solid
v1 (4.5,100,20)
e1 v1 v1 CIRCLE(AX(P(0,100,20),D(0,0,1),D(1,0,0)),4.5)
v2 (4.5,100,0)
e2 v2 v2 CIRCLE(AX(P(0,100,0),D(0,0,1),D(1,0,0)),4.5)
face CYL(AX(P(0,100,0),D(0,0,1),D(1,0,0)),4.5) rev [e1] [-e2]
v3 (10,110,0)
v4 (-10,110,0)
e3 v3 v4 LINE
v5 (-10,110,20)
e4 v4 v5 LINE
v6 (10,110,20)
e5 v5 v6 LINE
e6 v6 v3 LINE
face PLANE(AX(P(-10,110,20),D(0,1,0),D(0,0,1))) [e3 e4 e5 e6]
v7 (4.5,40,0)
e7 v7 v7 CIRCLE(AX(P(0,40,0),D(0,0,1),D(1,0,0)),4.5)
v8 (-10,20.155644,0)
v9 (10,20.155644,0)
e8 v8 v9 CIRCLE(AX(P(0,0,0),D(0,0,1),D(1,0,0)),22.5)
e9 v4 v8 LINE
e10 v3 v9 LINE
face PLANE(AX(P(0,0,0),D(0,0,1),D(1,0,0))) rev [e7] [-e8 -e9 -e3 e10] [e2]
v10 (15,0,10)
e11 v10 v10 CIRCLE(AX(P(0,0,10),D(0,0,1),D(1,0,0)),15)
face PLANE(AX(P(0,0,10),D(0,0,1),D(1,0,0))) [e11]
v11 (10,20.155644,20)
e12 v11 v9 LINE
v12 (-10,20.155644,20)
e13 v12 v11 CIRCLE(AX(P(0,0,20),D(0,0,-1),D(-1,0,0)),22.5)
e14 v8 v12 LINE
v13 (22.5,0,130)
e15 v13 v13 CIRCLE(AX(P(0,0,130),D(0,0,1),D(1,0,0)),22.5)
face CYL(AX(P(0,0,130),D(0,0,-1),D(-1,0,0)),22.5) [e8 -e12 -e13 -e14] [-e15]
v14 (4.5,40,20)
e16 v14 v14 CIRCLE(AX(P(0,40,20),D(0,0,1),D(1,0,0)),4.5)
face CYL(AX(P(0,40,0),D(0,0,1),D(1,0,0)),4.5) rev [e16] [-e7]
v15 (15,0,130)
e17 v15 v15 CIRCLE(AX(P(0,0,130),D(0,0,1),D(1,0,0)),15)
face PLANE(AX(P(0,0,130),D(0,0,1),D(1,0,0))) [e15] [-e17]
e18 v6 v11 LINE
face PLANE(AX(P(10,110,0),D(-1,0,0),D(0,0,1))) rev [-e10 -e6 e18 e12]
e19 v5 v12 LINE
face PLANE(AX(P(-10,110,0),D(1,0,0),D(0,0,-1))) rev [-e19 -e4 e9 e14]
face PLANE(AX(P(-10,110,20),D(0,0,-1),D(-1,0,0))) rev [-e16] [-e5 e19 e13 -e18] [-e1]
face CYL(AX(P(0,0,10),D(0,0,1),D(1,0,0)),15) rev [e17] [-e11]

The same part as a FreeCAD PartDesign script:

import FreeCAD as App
import Part
import Sketcher
from FreeCAD import Vector


def add_polygon(sketch, points):
    """Adds a closed chain of lines whose ends are joined by coincident constraints."""
    first, n = sketch.GeometryCount, len(points)
    for a, b in zip(points, points[1:] + points[:1]):
        sketch.addGeometry(Part.LineSegment(App.Vector(*a, 0), App.Vector(*b, 0)), False)
    for i in range(n):
        sketch.addConstraint(Sketcher.Constraint("Coincident", first + i, 2, first + (i + 1) % n, 1))

doc = App.newDocument("Part")
body = doc.addObject("PartDesign::Body", "Body")

# Sketch on XY plane
sketch1 = body.newObject("Sketcher::SketchObject", "Sketch")
sketch1.AttachmentSupport = (doc.getObject("XY_Plane"), [""])
sketch1.MapMode = "FlatFace"
sketch1.addGeometry(Part.Circle(Vector(0, 0, 0), Vector(0, 0, 1), 22), False)
sketch1.addConstraint(Sketcher.Constraint("Coincident", 0, 3, -1, 1))
sketch1.addConstraint(Sketcher.Constraint("Diameter", 0, 45.0))
pad1 = body.newObject("PartDesign::Pad", "Pad")
pad1.Profile = sketch1
pad1.Length = 130

# Sketch on XZ plane
sketch2 = body.newObject("Sketcher::SketchObject", "Sketch001")
sketch2.AttachmentSupport = (doc.getObject("XZ_Plane"), [""])
sketch2.MapMode = "FlatFace"
add_polygon(sketch2, [(-10, 0), (-10, 20), (10, 20), (10, 0)])  # lines 0-3
sketch2.addConstraint(Sketcher.Constraint("Vertical", 0))
sketch2.addConstraint(Sketcher.Constraint("Horizontal", 1))
sketch2.addConstraint(Sketcher.Constraint("Vertical", 2))
sketch2.addConstraint(Sketcher.Constraint("Horizontal", 3))
sketch2.addConstraint(Sketcher.Constraint("Symmetric", 2, 2, 3, 2, -1, 1))
sketch2.addConstraint(Sketcher.Constraint("Equal", 3, 0))
sketch2.addConstraint(Sketcher.Constraint("DistanceX", 1, 1, 1, 2, 20.0))
pad2 = body.newObject("PartDesign::Pad", "Pad001")
pad2.Profile = sketch2
pad2.Length = 110
pad2.Reversed = True

# Sketch on XY plane
sketch3 = body.newObject("Sketcher::SketchObject", "Sketch002")
sketch3.AttachmentSupport = (doc.getObject("XY_Plane"), [""])
sketch3.MapMode = "FlatFace"
sketch3.AttachmentOffset = App.Placement(Vector(0, 0, 20), App.Rotation())
sketch3.addGeometry(Part.Circle(Vector(0, 100, 0), Vector(0, 0, 1), 4.5), False)
sketch3.addGeometry(Part.Circle(Vector(0, 40, 0), Vector(0, 0, 1), 4.5), False)
sketch3.addConstraint(Sketcher.Constraint("Equal", 0, 1))
sketch3.addConstraint(Sketcher.Constraint("PointOnObject", 0, 3, -2))
sketch3.addConstraint(Sketcher.Constraint("PointOnObject", 1, 3, -2))
sketch3.addConstraint(Sketcher.Constraint("Diameter", 0, 9.0))
sketch3.addConstraint(Sketcher.Constraint("DistanceY", -1, 1, 0, 3, 100.0))
sketch3.addConstraint(Sketcher.Constraint("DistanceY", -1, 1, 1, 3, 40.0))
pocket1 = body.newObject("PartDesign::Pocket", "Pocket")
pocket1.Profile = sketch3
pocket1.Length = 20

# Sketch on XY plane
sketch4 = body.newObject("Sketcher::SketchObject", "Sketch003")
sketch4.AttachmentSupport = (doc.getObject("XY_Plane"), [""])
sketch4.MapMode = "FlatFace"
sketch4.AttachmentOffset = App.Placement(Vector(0, 0, 130), App.Rotation())
sketch4.addGeometry(Part.Circle(Vector(0, 0, 0), Vector(0, 0, 1), 15), False)
sketch4.addConstraint(Sketcher.Constraint("Coincident", 0, 3, -1, 1))
sketch4.addConstraint(Sketcher.Constraint("Diameter", 0, 30.0))
pocket2 = body.newObject("PartDesign::Pocket", "Pocket001")
pocket2.Profile = sketch4
pocket2.Length = 120

doc.recompute()
